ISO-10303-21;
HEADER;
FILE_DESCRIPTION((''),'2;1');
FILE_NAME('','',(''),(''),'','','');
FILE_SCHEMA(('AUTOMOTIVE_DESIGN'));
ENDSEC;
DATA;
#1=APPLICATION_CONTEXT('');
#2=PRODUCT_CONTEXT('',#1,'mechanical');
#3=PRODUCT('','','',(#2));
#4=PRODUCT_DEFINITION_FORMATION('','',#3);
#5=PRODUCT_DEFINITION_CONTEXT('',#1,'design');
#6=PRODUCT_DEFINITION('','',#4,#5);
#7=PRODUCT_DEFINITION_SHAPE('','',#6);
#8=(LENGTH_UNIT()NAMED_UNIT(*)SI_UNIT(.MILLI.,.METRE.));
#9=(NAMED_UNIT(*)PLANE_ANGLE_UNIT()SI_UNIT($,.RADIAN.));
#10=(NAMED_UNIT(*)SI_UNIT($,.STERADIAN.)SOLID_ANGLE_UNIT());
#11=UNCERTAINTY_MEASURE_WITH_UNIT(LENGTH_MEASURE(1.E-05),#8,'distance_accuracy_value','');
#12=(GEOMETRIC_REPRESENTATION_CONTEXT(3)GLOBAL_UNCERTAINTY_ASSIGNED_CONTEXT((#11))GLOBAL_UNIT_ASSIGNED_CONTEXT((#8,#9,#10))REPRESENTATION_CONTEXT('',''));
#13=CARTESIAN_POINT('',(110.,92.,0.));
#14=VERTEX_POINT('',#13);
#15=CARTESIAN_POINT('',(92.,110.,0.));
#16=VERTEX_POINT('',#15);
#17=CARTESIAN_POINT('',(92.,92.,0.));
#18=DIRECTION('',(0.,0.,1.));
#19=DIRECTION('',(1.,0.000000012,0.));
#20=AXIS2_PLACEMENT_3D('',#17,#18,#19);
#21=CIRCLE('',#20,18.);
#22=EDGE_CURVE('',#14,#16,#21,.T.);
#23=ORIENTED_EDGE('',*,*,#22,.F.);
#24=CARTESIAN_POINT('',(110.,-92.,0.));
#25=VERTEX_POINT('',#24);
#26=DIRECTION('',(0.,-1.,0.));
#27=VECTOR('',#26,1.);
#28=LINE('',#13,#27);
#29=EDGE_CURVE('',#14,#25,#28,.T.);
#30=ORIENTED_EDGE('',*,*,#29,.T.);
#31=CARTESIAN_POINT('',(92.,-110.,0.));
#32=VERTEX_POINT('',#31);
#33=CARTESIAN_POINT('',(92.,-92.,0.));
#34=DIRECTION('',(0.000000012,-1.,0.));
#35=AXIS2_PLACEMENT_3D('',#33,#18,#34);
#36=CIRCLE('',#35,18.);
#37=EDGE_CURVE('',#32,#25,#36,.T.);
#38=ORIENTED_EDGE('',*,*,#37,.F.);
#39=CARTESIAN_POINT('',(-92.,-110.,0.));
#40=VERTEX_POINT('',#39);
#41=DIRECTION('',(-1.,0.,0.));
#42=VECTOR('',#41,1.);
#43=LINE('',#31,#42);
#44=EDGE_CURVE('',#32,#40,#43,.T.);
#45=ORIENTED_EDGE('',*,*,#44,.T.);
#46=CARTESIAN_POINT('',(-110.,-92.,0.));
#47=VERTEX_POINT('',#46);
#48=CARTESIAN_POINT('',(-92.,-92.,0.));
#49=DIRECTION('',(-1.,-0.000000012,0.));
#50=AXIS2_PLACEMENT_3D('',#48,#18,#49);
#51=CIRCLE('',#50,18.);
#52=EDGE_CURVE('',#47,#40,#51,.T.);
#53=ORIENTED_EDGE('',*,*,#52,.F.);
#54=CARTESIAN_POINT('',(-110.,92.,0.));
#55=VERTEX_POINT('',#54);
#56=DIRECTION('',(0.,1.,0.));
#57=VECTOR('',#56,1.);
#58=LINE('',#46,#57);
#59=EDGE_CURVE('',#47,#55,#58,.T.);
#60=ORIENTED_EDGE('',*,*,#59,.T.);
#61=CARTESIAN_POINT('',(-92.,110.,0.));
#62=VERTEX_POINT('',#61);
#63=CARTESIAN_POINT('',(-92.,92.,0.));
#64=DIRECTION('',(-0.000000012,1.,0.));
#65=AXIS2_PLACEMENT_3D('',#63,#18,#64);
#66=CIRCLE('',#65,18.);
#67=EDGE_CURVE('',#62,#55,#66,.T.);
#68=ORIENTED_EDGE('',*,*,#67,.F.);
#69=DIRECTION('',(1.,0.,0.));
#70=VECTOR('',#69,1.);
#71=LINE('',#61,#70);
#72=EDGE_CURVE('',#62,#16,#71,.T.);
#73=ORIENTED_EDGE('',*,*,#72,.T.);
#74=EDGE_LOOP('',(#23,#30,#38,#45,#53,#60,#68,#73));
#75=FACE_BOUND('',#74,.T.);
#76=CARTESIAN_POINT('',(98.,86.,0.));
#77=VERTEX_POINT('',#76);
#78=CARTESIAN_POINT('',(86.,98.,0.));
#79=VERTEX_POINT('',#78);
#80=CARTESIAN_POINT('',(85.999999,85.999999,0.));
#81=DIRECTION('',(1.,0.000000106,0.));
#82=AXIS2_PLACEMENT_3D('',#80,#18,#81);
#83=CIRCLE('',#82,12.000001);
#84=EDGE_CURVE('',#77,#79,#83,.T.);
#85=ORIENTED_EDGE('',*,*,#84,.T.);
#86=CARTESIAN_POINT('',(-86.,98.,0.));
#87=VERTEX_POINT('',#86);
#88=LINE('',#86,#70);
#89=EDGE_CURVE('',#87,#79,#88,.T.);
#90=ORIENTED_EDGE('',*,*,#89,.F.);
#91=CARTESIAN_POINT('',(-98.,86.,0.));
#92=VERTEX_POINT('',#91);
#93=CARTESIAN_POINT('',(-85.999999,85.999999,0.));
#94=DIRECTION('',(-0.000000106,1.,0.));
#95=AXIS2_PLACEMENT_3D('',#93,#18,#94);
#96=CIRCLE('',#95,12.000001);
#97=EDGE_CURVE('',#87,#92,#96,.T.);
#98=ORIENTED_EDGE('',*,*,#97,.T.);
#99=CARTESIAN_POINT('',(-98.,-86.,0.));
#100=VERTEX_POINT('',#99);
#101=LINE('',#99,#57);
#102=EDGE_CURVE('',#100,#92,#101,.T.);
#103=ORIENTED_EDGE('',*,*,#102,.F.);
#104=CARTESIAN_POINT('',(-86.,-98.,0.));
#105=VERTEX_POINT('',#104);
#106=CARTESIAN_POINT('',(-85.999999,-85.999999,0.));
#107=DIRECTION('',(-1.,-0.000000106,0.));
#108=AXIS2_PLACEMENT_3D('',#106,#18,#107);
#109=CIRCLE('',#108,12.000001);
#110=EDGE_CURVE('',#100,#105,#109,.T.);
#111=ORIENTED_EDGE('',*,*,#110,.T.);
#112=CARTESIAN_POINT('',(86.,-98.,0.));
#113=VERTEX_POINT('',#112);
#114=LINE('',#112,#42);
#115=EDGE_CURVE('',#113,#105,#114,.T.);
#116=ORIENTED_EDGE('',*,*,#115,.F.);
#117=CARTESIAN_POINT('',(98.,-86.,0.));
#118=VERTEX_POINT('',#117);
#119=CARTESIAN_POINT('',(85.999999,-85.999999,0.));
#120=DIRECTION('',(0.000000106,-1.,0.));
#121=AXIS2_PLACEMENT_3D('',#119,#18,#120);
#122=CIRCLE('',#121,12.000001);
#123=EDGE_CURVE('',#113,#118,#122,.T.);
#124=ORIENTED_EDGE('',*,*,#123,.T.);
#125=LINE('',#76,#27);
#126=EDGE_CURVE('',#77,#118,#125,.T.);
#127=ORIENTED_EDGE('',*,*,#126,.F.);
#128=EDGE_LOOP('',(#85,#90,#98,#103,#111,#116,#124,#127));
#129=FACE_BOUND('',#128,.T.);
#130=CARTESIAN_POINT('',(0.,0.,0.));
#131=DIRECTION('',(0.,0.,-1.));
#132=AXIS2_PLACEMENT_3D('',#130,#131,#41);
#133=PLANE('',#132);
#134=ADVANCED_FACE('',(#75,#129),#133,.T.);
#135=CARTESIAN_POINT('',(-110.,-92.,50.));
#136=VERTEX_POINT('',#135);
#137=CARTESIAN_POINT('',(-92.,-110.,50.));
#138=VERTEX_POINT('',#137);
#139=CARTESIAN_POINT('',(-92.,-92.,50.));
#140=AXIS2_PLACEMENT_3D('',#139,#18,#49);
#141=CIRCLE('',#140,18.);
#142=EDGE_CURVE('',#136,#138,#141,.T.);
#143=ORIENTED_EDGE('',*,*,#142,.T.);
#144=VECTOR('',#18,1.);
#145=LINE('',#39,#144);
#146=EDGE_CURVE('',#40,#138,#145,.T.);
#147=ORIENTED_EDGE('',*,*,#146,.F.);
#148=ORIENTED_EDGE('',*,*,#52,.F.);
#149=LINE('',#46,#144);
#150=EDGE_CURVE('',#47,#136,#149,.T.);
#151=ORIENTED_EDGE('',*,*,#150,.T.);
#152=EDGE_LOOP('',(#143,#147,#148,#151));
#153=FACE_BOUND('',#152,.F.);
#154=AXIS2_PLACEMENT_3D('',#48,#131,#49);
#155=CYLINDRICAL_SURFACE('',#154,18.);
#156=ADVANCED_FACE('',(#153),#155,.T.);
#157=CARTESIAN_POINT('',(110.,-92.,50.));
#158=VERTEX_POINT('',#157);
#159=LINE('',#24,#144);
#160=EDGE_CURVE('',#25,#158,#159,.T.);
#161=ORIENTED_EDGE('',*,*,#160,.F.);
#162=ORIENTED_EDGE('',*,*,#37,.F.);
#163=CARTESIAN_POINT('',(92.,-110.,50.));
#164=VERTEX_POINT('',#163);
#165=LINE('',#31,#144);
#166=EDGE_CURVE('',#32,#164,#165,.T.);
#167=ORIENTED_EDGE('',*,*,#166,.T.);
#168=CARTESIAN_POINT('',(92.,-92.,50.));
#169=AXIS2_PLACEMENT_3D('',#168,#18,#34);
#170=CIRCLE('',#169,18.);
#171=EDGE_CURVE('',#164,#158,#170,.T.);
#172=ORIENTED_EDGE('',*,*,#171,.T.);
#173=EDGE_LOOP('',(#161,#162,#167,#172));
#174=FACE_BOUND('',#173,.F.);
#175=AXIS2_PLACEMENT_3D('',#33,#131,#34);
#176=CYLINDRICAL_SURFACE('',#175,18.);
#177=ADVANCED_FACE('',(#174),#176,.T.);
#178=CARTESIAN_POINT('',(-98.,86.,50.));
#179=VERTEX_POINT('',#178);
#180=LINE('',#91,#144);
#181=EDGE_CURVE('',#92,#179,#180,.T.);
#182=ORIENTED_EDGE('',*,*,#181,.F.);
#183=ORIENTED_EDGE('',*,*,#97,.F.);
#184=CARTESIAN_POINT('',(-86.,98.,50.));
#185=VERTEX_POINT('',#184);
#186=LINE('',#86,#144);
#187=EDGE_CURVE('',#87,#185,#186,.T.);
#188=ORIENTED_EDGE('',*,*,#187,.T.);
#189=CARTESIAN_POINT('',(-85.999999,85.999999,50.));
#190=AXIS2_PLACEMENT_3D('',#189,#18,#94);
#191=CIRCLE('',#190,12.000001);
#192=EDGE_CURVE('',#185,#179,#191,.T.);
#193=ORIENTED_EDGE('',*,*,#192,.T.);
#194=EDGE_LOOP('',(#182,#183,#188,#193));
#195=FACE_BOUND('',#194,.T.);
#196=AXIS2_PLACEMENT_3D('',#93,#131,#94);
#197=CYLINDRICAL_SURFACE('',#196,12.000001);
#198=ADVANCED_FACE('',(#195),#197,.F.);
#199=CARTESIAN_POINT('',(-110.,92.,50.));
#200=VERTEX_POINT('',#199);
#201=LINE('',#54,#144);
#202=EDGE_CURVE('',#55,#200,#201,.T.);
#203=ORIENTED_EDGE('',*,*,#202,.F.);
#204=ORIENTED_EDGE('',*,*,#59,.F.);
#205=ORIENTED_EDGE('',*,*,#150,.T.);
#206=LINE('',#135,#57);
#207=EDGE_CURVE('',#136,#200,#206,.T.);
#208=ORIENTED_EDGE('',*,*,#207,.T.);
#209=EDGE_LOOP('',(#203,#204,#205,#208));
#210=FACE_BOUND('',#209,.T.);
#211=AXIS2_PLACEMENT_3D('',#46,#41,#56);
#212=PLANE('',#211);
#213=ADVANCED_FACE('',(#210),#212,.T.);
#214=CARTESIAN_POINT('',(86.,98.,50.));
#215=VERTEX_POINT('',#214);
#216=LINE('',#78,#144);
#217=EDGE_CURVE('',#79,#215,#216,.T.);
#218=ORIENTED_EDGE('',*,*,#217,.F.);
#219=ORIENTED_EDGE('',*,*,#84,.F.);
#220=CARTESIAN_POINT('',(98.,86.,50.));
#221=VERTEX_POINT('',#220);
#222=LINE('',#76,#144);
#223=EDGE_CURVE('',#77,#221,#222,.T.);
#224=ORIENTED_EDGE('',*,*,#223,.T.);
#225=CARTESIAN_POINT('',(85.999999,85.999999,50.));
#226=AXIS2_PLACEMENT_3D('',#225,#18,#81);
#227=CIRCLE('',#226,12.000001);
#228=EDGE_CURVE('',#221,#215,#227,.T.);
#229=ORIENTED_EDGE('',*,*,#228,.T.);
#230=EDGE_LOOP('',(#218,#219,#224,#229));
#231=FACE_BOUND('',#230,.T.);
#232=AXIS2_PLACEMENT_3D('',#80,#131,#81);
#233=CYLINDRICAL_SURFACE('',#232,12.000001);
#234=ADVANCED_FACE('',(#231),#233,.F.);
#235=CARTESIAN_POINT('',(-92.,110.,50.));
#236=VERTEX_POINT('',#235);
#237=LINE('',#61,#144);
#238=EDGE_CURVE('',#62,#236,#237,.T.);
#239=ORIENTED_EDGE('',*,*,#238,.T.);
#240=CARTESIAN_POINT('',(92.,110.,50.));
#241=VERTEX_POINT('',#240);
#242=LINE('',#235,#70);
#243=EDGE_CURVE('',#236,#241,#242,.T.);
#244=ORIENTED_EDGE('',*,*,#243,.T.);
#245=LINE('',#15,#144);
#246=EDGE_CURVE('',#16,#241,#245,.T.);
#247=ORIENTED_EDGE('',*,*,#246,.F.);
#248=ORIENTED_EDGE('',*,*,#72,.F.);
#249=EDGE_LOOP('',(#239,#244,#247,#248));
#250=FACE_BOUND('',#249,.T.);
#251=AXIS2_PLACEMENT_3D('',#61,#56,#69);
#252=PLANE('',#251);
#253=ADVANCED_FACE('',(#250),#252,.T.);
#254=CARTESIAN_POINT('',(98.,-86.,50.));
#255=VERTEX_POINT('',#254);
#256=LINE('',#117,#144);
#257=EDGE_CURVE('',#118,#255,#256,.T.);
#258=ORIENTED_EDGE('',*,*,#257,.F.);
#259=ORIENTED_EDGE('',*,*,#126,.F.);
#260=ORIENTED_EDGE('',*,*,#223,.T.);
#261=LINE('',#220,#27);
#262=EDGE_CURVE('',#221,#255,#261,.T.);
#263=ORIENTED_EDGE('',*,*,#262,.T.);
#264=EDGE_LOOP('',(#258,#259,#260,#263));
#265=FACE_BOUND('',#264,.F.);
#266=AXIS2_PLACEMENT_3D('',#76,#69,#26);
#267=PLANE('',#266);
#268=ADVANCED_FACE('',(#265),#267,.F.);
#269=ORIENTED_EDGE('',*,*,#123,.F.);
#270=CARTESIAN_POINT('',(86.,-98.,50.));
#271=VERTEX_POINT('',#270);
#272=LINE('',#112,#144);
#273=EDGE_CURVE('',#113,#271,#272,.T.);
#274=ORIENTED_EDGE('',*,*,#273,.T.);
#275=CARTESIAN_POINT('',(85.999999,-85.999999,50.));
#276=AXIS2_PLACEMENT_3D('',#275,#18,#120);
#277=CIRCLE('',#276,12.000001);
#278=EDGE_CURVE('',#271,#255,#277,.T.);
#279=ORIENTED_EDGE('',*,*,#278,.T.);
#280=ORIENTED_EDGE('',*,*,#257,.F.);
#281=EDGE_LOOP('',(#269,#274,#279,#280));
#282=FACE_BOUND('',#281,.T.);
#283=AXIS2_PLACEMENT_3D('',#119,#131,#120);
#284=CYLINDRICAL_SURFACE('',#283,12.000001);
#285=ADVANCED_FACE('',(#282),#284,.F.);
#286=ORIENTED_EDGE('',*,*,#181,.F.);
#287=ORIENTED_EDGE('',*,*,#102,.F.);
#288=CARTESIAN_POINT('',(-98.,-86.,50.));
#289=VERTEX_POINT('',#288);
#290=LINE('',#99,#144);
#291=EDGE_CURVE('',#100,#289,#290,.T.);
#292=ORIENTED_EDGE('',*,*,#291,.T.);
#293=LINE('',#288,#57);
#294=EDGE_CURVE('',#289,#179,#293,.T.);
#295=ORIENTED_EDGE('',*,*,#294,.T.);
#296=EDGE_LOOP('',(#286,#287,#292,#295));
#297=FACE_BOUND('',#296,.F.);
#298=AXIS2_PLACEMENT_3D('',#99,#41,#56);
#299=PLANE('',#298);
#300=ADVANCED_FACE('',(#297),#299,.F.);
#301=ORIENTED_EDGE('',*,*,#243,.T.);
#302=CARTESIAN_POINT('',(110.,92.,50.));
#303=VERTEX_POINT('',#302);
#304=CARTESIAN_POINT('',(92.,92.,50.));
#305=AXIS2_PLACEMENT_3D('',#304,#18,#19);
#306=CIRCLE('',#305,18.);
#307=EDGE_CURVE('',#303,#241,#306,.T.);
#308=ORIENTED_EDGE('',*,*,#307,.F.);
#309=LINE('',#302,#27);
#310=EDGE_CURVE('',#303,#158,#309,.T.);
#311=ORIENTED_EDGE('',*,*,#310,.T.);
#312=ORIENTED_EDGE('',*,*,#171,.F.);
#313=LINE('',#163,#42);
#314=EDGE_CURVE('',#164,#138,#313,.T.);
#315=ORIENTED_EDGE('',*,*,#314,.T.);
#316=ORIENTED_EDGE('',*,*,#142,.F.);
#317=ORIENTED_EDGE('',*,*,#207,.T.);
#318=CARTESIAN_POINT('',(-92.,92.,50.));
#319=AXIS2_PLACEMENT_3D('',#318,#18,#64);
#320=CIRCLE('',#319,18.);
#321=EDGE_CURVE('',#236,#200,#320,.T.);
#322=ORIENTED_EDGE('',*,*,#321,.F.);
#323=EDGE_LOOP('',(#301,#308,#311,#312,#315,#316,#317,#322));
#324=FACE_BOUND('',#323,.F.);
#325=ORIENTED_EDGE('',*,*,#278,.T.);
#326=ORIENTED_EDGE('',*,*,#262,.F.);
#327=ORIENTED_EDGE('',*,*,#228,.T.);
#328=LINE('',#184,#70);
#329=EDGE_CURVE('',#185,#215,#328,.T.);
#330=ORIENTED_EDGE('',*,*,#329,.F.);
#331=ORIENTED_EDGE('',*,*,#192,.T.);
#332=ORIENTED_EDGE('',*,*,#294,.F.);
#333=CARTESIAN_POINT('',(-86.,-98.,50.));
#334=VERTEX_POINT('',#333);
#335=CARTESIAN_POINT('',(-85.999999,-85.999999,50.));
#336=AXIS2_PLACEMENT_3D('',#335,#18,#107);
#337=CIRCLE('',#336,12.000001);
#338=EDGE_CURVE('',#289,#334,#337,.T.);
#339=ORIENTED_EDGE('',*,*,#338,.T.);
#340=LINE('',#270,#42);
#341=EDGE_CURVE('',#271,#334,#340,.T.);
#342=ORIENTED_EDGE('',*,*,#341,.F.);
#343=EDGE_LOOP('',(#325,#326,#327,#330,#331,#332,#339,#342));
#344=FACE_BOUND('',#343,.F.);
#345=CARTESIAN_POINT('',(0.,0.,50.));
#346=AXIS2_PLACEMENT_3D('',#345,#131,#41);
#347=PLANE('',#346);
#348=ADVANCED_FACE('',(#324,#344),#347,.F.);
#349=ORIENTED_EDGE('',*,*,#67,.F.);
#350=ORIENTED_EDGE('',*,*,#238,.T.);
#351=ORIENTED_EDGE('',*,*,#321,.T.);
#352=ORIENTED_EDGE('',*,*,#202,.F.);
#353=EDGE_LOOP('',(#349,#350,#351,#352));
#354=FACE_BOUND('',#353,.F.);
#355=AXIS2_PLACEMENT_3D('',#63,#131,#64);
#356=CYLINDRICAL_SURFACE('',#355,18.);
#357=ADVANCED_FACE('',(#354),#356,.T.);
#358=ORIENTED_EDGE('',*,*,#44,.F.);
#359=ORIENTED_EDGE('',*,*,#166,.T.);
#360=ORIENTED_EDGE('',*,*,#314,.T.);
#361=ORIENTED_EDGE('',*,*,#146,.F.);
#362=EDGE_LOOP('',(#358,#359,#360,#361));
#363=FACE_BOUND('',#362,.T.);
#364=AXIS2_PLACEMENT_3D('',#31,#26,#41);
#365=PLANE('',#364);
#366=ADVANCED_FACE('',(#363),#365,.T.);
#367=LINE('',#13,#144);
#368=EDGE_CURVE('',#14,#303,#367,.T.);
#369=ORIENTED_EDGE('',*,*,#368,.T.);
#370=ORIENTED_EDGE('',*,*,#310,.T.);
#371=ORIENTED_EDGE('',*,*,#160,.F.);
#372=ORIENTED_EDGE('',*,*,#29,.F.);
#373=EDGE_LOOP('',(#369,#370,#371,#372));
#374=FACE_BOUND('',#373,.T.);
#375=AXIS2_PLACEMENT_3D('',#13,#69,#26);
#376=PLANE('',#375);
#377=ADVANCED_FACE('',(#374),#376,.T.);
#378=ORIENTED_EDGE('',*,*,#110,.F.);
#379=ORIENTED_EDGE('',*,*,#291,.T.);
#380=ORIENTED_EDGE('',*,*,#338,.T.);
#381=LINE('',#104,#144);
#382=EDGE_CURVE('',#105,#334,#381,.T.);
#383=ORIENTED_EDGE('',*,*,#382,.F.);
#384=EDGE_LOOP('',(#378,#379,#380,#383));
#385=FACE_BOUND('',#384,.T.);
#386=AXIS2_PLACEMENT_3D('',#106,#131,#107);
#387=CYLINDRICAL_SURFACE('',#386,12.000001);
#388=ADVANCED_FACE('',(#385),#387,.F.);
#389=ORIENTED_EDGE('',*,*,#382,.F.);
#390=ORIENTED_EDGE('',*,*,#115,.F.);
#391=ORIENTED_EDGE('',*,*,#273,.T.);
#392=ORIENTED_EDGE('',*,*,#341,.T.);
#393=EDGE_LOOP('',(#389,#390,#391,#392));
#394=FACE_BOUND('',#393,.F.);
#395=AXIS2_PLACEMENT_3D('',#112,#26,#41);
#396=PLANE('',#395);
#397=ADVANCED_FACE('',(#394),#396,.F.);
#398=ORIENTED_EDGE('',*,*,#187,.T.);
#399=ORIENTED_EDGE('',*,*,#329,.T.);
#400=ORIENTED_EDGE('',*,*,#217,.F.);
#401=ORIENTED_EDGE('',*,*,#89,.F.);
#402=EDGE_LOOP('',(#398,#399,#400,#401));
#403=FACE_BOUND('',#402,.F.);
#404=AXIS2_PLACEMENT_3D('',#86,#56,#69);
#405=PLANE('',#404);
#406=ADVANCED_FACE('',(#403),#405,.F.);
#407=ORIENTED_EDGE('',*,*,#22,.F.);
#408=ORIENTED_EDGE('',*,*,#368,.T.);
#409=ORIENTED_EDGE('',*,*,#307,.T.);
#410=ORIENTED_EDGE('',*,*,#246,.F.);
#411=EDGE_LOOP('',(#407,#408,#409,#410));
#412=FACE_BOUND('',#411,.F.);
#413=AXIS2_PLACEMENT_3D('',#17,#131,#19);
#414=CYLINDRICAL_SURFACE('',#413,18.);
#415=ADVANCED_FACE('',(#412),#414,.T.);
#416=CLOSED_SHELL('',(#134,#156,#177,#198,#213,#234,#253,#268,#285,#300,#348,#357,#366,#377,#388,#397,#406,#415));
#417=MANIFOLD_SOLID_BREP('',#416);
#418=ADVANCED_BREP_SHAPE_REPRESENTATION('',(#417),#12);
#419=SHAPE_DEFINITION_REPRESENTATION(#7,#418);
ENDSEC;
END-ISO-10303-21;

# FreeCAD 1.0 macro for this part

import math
import FreeCAD as App
import Part
import Sketcher
from FreeCAD import Vector

doc = App.newDocument("Part")
params = doc.addObject("Spreadsheet::Sheet", "Params")
for row, (alias, value) in enumerate([
    ("sketch1_radius", "18 mm"),
    ("sketch1_radius2", "12.000001 mm"),
    ("sketch1_width", "184 mm"),
    ("sketch1_width2", "172 mm"),
    ("pad1_length", "50 mm"),
], start=1):
    params.set(f"A{row}", alias)
    params.set(f"B{row}", "=" + value)
    params.setAlias(f"B{row}", alias)

body = doc.addObject("PartDesign::Body", "Body")

# Sketch on XY plane
sketch1 = body.newObject("Sketcher::SketchObject", "Sketch")
sketch1.AttachmentSupport = (doc.getObject("XY_Plane"), [""])
sketch1.MapMode = "FlatFace"
sketch1.addGeometry(Part.LineSegment(Vector(92, 110, 0), Vector(-92, 110, 0)), False)
sketch1.addGeometry(Part.ArcOfCircle(Part.Circle(Vector(-92, 92, 0), Vector(0, 0, 1), 18), math.radians(90.000001), math.radians(179.999999)), False)
sketch1.addGeometry(Part.LineSegment(Vector(-110, 92, 0), Vector(-110, -92, 0)), False)
sketch1.addGeometry(Part.ArcOfCircle(Part.Circle(Vector(-92, -92, 0), Vector(0, 0, 1), 18), math.radians(-179.999999), math.radians(-90.000001)), False)
sketch1.addGeometry(Part.LineSegment(Vector(-92, -110, 0), Vector(92, -110, 0)), False)
sketch1.addGeometry(Part.ArcOfCircle(Part.Circle(Vector(92, -92, 0), Vector(0, 0, 1), 18), math.radians(-89.999999), math.radians(-0.000001)), False)
sketch1.addGeometry(Part.LineSegment(Vector(110, -92, 0), Vector(110, 92, 0)), False)
sketch1.addGeometry(Part.ArcOfCircle(Part.Circle(Vector(92, 92, 0), Vector(0, 0, 1), 18), math.radians(0.000001), math.radians(89.999999)), False)
sketch1.addGeometry(Part.LineSegment(Vector(-86, 98, 0), Vector(86, 98, 0)), False)
sketch1.addGeometry(Part.ArcOfCircle(Part.Circle(Vector(85.999999, 85.999999, 0), Vector(0, 0, 1), 12.000001), math.radians(0.000006), math.radians(89.999994)), False)
sketch1.addGeometry(Part.LineSegment(Vector(98, 86, 0), Vector(98, -86, 0)), False)
sketch1.addGeometry(Part.ArcOfCircle(Part.Circle(Vector(85.999999, -85.999999, 0), Vector(0, 0, 1), 12.000001), math.radians(-89.999994), math.radians(-0.000006)), False)
sketch1.addGeometry(Part.LineSegment(Vector(86, -98, 0), Vector(-86, -98, 0)), False)
sketch1.addGeometry(Part.ArcOfCircle(Part.Circle(Vector(-85.999999, -85.999999, 0), Vector(0, 0, 1), 12.000001), math.radians(-179.999994), math.radians(-90.000006)), False)
sketch1.addGeometry(Part.LineSegment(Vector(-98, -86, 0), Vector(-98, 86, 0)), False)
sketch1.addGeometry(Part.ArcOfCircle(Part.Circle(Vector(-85.999999, 85.999999, 0), Vector(0, 0, 1), 12.000001), math.radians(90.000006), math.radians(179.999994)), False)
sketch1.addConstraint(Sketcher.Constraint("Tangent", 0, 2, 1, 1))
sketch1.addConstraint(Sketcher.Constraint("Tangent", 1, 2, 2, 1))
sketch1.addConstraint(Sketcher.Constraint("Tangent", 2, 2, 3, 1))
sketch1.addConstraint(Sketcher.Constraint("Tangent", 3, 2, 4, 1))
sketch1.addConstraint(Sketcher.Constraint("Tangent", 4, 2, 5, 1))
sketch1.addConstraint(Sketcher.Constraint("Tangent", 5, 2, 6, 1))
sketch1.addConstraint(Sketcher.Constraint("Tangent", 6, 2, 7, 1))
sketch1.addConstraint(Sketcher.Constraint("Tangent", 7, 2, 0, 1))
sketch1.addConstraint(Sketcher.Constraint("Tangent", 8, 2, 9, 2))
sketch1.addConstraint(Sketcher.Constraint("Tangent", 9, 1, 10, 1))
sketch1.addConstraint(Sketcher.Constraint("Tangent", 10, 2, 11, 2))
sketch1.addConstraint(Sketcher.Constraint("Tangent", 11, 1, 12, 1))
sketch1.addConstraint(Sketcher.Constraint("Tangent", 12, 2, 13, 2))
sketch1.addConstraint(Sketcher.Constraint("Tangent", 13, 1, 14, 1))
sketch1.addConstraint(Sketcher.Constraint("Tangent", 14, 2, 15, 2))
sketch1.addConstraint(Sketcher.Constraint("Tangent", 15, 1, 8, 1))
sketch1.addConstraint(Sketcher.Constraint("Horizontal", 0))
sketch1.addConstraint(Sketcher.Constraint("Vertical", 2))
sketch1.addConstraint(Sketcher.Constraint("Horizontal", 4))
sketch1.addConstraint(Sketcher.Constraint("Vertical", 6))
sketch1.addConstraint(Sketcher.Constraint("Horizontal", 8))
sketch1.addConstraint(Sketcher.Constraint("Vertical", 10))
sketch1.addConstraint(Sketcher.Constraint("Horizontal", 12))
sketch1.addConstraint(Sketcher.Constraint("Vertical", 14))
sketch1.addConstraint(Sketcher.Constraint("Equal", 1, 3))
sketch1.addConstraint(Sketcher.Constraint("Equal", 3, 5))
sketch1.addConstraint(Sketcher.Constraint("Equal", 5, 7))
sketch1.addConstraint(Sketcher.Constraint("Equal", 9, 11))
sketch1.addConstraint(Sketcher.Constraint("Equal", 11, 13))
sketch1.addConstraint(Sketcher.Constraint("Equal", 13, 15))
sketch1.addConstraint(Sketcher.Constraint("Symmetric", 1, 3, 5, 3, -1, 1))
sketch1.addConstraint(Sketcher.Constraint("Symmetric", 9, 3, 13, 3, -1, 1))
sketch1.addConstraint(Sketcher.Constraint("Equal", 4, 2))
sketch1.addConstraint(Sketcher.Constraint("Equal", 12, 10))
sketch1.addConstraint(Sketcher.Constraint("Radius", 1, 18.0))
sketch1.addConstraint(Sketcher.Constraint("Radius", 9, 12.000001))
sketch1.addConstraint(Sketcher.Constraint("DistanceX", 0, 2, 0, 1, 184.0))
sketch1.addConstraint(Sketcher.Constraint("DistanceX", 8, 1, 8, 2, 172.0))
sketch1.setExpression("Constraints[34]", "Params.sketch1_radius")
sketch1.setExpression("Constraints[35]", "Params.sketch1_radius2")
sketch1.setExpression("Constraints[36]", "Params.sketch1_width")
sketch1.setExpression("Constraints[37]", "Params.sketch1_width2")
pad1 = body.newObject("PartDesign::Pad", "Pad")
pad1.Profile = sketch1
pad1.setExpression("Length", "Params.pad1_length")

doc.recompute()
